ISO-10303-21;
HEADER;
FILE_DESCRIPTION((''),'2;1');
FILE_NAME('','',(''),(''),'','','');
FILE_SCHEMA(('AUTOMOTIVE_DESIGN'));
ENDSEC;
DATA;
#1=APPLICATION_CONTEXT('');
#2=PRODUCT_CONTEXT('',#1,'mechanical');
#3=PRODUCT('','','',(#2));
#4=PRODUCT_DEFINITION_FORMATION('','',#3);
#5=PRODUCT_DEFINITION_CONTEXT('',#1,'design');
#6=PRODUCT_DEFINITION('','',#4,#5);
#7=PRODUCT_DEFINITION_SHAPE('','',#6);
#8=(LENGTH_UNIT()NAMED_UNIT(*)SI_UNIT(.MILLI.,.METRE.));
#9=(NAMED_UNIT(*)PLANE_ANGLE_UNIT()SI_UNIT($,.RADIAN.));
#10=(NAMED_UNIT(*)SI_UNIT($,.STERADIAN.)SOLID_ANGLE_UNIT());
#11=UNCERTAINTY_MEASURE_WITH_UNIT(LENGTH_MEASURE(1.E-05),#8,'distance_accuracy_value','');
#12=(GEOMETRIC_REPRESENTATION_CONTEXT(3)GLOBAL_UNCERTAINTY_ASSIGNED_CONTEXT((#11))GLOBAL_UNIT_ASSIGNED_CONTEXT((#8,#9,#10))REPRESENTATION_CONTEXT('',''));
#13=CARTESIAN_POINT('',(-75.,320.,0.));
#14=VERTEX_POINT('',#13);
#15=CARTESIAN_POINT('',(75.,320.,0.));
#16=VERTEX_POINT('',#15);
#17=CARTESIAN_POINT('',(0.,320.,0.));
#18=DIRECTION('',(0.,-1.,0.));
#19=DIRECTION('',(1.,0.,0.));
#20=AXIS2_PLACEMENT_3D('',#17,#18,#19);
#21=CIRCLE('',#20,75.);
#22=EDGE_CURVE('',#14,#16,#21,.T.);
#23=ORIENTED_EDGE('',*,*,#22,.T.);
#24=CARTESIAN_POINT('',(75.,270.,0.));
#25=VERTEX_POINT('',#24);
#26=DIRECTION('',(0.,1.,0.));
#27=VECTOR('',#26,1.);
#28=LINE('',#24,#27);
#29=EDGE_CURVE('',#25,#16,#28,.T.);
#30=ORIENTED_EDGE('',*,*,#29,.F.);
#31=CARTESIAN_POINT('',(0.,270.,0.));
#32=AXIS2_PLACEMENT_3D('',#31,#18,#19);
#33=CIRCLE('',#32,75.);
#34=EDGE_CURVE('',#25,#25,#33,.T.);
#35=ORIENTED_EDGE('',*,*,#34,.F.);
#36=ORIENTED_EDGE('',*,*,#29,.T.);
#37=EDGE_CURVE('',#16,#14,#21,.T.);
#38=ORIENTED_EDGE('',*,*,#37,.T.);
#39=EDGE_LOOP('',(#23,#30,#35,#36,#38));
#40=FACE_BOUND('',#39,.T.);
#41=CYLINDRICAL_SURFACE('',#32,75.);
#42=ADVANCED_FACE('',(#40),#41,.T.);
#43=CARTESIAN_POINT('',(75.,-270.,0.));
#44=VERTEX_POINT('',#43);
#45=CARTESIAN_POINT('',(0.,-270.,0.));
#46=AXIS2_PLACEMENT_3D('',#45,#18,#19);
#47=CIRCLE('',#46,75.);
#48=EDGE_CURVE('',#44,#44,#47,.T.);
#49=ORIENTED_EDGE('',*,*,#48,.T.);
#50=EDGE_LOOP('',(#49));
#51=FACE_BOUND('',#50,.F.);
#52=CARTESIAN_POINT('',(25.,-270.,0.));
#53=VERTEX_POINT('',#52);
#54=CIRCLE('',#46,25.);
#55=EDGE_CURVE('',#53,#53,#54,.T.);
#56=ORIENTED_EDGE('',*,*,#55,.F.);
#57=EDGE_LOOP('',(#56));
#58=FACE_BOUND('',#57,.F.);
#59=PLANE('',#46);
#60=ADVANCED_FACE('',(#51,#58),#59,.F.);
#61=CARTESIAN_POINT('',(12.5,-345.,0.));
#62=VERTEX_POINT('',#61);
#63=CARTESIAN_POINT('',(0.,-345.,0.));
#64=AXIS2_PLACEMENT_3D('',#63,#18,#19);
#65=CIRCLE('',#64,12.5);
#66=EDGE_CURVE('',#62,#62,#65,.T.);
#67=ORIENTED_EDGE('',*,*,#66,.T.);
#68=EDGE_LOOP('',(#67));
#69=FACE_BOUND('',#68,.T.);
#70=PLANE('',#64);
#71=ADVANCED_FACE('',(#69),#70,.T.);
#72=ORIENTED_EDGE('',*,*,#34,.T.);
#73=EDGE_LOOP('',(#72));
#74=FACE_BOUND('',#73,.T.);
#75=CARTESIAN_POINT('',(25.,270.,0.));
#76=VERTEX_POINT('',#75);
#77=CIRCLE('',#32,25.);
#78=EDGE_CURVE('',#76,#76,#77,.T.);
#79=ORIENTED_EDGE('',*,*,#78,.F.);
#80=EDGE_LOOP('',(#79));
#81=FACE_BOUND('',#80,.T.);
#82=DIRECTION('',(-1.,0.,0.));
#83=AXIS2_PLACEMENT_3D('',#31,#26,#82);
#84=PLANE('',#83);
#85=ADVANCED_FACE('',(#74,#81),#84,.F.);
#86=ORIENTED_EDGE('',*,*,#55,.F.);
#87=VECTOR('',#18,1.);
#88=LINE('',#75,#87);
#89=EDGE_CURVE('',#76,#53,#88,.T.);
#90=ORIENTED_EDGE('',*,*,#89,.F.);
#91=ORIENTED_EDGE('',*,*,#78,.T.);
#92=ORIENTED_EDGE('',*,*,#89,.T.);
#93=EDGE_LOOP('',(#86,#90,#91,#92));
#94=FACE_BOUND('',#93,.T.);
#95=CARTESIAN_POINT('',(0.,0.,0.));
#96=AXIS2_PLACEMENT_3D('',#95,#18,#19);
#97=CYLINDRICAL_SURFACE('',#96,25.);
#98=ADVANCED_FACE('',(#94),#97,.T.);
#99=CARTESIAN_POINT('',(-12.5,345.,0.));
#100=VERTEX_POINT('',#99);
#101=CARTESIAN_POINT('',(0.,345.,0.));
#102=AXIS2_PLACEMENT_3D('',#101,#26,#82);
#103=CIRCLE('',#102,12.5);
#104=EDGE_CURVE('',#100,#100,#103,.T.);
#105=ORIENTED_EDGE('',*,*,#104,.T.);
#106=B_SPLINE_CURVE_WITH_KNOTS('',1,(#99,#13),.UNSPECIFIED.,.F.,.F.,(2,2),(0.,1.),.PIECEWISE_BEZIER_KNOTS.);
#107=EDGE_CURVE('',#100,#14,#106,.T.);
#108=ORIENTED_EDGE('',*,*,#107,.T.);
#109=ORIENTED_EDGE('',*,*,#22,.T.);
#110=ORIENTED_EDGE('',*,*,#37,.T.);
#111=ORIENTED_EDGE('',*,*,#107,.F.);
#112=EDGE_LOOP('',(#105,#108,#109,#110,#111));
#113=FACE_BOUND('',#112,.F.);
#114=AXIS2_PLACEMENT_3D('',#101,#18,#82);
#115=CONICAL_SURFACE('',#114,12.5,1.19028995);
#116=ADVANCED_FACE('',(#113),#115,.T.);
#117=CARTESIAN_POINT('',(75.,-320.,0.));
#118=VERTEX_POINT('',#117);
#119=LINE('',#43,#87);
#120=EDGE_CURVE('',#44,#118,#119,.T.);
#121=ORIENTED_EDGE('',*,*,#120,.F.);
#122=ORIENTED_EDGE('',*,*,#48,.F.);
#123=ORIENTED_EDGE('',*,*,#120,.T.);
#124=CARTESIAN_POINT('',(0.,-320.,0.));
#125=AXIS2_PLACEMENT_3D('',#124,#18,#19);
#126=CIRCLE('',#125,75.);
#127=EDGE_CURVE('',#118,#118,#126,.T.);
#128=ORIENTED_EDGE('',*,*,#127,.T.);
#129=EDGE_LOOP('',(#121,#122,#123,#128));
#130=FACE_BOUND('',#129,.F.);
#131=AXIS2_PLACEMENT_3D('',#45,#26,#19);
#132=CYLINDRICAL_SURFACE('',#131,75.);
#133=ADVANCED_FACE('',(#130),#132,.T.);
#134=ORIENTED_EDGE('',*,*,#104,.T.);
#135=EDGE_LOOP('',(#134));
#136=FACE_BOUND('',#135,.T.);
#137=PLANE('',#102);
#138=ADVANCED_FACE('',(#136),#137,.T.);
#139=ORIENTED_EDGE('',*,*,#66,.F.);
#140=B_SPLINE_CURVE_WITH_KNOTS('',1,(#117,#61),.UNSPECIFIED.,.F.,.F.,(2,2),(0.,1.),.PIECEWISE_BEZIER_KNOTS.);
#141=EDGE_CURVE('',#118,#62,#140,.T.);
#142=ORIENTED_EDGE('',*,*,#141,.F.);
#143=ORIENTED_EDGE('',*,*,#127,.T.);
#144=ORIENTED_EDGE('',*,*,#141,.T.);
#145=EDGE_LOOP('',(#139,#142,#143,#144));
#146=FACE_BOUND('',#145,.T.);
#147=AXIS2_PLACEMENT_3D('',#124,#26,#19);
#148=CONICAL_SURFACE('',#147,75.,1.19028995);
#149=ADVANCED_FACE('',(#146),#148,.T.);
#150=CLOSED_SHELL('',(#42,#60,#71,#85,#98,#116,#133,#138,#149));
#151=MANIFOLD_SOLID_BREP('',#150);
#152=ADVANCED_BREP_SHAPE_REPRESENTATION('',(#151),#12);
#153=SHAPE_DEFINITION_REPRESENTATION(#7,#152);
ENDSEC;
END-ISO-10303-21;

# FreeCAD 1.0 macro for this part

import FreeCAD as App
import Part
import Sketcher

doc = App.newDocument("Part")
params = doc.addObject("Spreadsheet::Sheet", "Params")
for row, (alias, value) in enumerate([
    ("sketch1_diameter", "50 mm"),
    ("pad1_length", "270 mm"),
    ("sketch2_diameter", "150 mm"),
    ("pad2_length", "50 mm"),
    ("sketch3_diameter", "150 mm"),
    ("sketch4_diameter", "25 mm"),
    ("sketch5_diameter", "25 mm"),
    ("sketch6_diameter", "150 mm"),
], start=1):
    params.set(f"A{row}", alias)
    params.set(f"B{row}", "=" + value)
    params.setAlias(f"B{row}", alias)

body = doc.addObject("PartDesign::Body", "Body")

# Sketch on XZ plane
sketch1 = body.newObject("Sketcher::SketchObject", "Sketch")
sketch1.AttachmentSupport = (doc.getObject("XZ_Plane"), [""])
sketch1.MapMode = "FlatFace"
sketch1.addGeometry(Part.Circle(App.Vector(0, 0, 0), App.Vector(0, 0, 1), 25), False)
sketch1.addConstraint([
    Sketcher.Constraint("Coincident", 0, 3, -1, 1),
    Sketcher.Constraint("Diameter", 0, 50.0),
])
sketch1.setExpression("Constraints[1]", "Params.sketch1_diameter")
pad1 = body.newObject("PartDesign::Pad", "Pad")
pad1.Profile = sketch1
pad1.setExpression("Length", "Params.pad1_length")

# Sketch on XZ plane
sketch2 = body.newObject("Sketcher::SketchObject", "Sketch001")
sketch2.AttachmentSupport = (doc.getObject("XZ_Plane"), [""])
sketch2.MapMode = "FlatFace"
sketch2.AttachmentOffset = App.Placement(App.Vector(0, 0, 270), App.Rotation())
sketch2.addGeometry(Part.Circle(App.Vector(0, 0, 0), App.Vector(0, 0, 1), 75), False)
sketch2.addConstraint([
    Sketcher.Constraint("Coincident", 0, 3, -1, 1),
    Sketcher.Constraint("Diameter", 0, 150.0),
])
sketch2.setExpression("Constraints[1]", "Params.sketch2_diameter")
pad2 = body.newObject("PartDesign::Pad", "Pad001")
pad2.Profile = sketch2
pad2.setExpression("Length", "Params.pad2_length")
body2 = doc.addObject("PartDesign::Body", "Body001")
doc.recompute()

body2.BaseFeature = body
doc.recompute()

mirroring = doc.addObject("Part::Mirroring", "Mirroring")
mirroring.Source = body
mirroring.Base = App.Vector(0, 0, 0)
mirroring.Normal = App.Vector(0, -1, 0)
body3 = doc.addObject("PartDesign::Body", "Body002")
body3.BaseFeature = mirroring
boolean = body2.newObject("PartDesign::Boolean", "Boolean")
boolean.Type = "Fuse"
boolean.addObjects([body3])
doc.recompute()

# Sketch on XZ plane
sketch3 = body2.newObject("Sketcher::SketchObject", "Sketch002")
sketch3.AttachmentSupport = (doc.getObject("XZ_Plane001"), [""])
sketch3.MapMode = "FlatFace"
sketch3.AttachmentOffset = App.Placement(App.Vector(0, 0, 320), App.Rotation())
sketch3.addGeometry(Part.Circle(App.Vector(0, 0, 0), App.Vector(0, 0, 1), 75), False)
sketch3.addConstraint([
    Sketcher.Constraint("Coincident", 0, 3, -1, 1),
    Sketcher.Constraint("Diameter", 0, 150.0),
])
sketch3.setExpression("Constraints[1]", "Params.sketch3_diameter")

# Sketch on XZ plane
sketch4 = body2.newObject("Sketcher::SketchObject", "Sketch003")
sketch4.AttachmentSupport = (doc.getObject("XZ_Plane001"), [""])
sketch4.MapMode = "FlatFace"
sketch4.AttachmentOffset = App.Placement(App.Vector(0, 0, 345), App.Rotation())
sketch4.addGeometry(Part.Circle(App.Vector(0, 0, 0), App.Vector(0, 0, 1), 12.5), False)
sketch4.addConstraint([
    Sketcher.Constraint("Coincident", 0, 3, -1, 1),
    Sketcher.Constraint("Diameter", 0, 25.0),
])
sketch4.setExpression("Constraints[1]", "Params.sketch4_diameter")

additiveloft = body2.newObject("PartDesign::AdditiveLoft", "AdditiveLoft")
additiveloft.Profile = sketch3
additiveloft.Sections = [sketch4]

# Sketch on XZ plane
sketch5 = body2.newObject("Sketcher::SketchObject", "Sketch004")
sketch5.AttachmentSupport = (doc.getObject("XZ_Plane001"), [""])
sketch5.MapMode = "FlatFace"
sketch5.AttachmentOffset = App.Placement(App.Vector(0, 0, -345), App.Rotation())
sketch5.addGeometry(Part.Circle(App.Vector(0, 0, 0), App.Vector(0, 0, 1), 12.5), False)
sketch5.addConstraint([
    Sketcher.Constraint("Coincident", 0, 3, -1, 1),
    Sketcher.Constraint("Diameter", 0, 25.0),
])
sketch5.setExpression("Constraints[1]", "Params.sketch5_diameter")

# Sketch on XZ plane
sketch6 = body2.newObject("Sketcher::SketchObject", "Sketch005")
sketch6.AttachmentSupport = (doc.getObject("XZ_Plane001"), [""])
sketch6.MapMode = "FlatFace"
sketch6.AttachmentOffset = App.Placement(App.Vector(0, 0, -320), App.Rotation())
sketch6.addGeometry(Part.Circle(App.Vector(0, 0, 0), App.Vector(0, 0, 1), 75), False)
sketch6.addConstraint([
    Sketcher.Constraint("Coincident", 0, 3, -1, 1),
    Sketcher.Constraint("Diameter", 0, 150.0),
])
sketch6.setExpression("Constraints[1]", "Params.sketch6_diameter")

additiveloft2 = body2.newObject("PartDesign::AdditiveLoft", "AdditiveLoft001")
additiveloft2.Profile = sketch5
additiveloft2.Sections = [sketch6]
mirroring.Visibility = False

doc.recompute()
